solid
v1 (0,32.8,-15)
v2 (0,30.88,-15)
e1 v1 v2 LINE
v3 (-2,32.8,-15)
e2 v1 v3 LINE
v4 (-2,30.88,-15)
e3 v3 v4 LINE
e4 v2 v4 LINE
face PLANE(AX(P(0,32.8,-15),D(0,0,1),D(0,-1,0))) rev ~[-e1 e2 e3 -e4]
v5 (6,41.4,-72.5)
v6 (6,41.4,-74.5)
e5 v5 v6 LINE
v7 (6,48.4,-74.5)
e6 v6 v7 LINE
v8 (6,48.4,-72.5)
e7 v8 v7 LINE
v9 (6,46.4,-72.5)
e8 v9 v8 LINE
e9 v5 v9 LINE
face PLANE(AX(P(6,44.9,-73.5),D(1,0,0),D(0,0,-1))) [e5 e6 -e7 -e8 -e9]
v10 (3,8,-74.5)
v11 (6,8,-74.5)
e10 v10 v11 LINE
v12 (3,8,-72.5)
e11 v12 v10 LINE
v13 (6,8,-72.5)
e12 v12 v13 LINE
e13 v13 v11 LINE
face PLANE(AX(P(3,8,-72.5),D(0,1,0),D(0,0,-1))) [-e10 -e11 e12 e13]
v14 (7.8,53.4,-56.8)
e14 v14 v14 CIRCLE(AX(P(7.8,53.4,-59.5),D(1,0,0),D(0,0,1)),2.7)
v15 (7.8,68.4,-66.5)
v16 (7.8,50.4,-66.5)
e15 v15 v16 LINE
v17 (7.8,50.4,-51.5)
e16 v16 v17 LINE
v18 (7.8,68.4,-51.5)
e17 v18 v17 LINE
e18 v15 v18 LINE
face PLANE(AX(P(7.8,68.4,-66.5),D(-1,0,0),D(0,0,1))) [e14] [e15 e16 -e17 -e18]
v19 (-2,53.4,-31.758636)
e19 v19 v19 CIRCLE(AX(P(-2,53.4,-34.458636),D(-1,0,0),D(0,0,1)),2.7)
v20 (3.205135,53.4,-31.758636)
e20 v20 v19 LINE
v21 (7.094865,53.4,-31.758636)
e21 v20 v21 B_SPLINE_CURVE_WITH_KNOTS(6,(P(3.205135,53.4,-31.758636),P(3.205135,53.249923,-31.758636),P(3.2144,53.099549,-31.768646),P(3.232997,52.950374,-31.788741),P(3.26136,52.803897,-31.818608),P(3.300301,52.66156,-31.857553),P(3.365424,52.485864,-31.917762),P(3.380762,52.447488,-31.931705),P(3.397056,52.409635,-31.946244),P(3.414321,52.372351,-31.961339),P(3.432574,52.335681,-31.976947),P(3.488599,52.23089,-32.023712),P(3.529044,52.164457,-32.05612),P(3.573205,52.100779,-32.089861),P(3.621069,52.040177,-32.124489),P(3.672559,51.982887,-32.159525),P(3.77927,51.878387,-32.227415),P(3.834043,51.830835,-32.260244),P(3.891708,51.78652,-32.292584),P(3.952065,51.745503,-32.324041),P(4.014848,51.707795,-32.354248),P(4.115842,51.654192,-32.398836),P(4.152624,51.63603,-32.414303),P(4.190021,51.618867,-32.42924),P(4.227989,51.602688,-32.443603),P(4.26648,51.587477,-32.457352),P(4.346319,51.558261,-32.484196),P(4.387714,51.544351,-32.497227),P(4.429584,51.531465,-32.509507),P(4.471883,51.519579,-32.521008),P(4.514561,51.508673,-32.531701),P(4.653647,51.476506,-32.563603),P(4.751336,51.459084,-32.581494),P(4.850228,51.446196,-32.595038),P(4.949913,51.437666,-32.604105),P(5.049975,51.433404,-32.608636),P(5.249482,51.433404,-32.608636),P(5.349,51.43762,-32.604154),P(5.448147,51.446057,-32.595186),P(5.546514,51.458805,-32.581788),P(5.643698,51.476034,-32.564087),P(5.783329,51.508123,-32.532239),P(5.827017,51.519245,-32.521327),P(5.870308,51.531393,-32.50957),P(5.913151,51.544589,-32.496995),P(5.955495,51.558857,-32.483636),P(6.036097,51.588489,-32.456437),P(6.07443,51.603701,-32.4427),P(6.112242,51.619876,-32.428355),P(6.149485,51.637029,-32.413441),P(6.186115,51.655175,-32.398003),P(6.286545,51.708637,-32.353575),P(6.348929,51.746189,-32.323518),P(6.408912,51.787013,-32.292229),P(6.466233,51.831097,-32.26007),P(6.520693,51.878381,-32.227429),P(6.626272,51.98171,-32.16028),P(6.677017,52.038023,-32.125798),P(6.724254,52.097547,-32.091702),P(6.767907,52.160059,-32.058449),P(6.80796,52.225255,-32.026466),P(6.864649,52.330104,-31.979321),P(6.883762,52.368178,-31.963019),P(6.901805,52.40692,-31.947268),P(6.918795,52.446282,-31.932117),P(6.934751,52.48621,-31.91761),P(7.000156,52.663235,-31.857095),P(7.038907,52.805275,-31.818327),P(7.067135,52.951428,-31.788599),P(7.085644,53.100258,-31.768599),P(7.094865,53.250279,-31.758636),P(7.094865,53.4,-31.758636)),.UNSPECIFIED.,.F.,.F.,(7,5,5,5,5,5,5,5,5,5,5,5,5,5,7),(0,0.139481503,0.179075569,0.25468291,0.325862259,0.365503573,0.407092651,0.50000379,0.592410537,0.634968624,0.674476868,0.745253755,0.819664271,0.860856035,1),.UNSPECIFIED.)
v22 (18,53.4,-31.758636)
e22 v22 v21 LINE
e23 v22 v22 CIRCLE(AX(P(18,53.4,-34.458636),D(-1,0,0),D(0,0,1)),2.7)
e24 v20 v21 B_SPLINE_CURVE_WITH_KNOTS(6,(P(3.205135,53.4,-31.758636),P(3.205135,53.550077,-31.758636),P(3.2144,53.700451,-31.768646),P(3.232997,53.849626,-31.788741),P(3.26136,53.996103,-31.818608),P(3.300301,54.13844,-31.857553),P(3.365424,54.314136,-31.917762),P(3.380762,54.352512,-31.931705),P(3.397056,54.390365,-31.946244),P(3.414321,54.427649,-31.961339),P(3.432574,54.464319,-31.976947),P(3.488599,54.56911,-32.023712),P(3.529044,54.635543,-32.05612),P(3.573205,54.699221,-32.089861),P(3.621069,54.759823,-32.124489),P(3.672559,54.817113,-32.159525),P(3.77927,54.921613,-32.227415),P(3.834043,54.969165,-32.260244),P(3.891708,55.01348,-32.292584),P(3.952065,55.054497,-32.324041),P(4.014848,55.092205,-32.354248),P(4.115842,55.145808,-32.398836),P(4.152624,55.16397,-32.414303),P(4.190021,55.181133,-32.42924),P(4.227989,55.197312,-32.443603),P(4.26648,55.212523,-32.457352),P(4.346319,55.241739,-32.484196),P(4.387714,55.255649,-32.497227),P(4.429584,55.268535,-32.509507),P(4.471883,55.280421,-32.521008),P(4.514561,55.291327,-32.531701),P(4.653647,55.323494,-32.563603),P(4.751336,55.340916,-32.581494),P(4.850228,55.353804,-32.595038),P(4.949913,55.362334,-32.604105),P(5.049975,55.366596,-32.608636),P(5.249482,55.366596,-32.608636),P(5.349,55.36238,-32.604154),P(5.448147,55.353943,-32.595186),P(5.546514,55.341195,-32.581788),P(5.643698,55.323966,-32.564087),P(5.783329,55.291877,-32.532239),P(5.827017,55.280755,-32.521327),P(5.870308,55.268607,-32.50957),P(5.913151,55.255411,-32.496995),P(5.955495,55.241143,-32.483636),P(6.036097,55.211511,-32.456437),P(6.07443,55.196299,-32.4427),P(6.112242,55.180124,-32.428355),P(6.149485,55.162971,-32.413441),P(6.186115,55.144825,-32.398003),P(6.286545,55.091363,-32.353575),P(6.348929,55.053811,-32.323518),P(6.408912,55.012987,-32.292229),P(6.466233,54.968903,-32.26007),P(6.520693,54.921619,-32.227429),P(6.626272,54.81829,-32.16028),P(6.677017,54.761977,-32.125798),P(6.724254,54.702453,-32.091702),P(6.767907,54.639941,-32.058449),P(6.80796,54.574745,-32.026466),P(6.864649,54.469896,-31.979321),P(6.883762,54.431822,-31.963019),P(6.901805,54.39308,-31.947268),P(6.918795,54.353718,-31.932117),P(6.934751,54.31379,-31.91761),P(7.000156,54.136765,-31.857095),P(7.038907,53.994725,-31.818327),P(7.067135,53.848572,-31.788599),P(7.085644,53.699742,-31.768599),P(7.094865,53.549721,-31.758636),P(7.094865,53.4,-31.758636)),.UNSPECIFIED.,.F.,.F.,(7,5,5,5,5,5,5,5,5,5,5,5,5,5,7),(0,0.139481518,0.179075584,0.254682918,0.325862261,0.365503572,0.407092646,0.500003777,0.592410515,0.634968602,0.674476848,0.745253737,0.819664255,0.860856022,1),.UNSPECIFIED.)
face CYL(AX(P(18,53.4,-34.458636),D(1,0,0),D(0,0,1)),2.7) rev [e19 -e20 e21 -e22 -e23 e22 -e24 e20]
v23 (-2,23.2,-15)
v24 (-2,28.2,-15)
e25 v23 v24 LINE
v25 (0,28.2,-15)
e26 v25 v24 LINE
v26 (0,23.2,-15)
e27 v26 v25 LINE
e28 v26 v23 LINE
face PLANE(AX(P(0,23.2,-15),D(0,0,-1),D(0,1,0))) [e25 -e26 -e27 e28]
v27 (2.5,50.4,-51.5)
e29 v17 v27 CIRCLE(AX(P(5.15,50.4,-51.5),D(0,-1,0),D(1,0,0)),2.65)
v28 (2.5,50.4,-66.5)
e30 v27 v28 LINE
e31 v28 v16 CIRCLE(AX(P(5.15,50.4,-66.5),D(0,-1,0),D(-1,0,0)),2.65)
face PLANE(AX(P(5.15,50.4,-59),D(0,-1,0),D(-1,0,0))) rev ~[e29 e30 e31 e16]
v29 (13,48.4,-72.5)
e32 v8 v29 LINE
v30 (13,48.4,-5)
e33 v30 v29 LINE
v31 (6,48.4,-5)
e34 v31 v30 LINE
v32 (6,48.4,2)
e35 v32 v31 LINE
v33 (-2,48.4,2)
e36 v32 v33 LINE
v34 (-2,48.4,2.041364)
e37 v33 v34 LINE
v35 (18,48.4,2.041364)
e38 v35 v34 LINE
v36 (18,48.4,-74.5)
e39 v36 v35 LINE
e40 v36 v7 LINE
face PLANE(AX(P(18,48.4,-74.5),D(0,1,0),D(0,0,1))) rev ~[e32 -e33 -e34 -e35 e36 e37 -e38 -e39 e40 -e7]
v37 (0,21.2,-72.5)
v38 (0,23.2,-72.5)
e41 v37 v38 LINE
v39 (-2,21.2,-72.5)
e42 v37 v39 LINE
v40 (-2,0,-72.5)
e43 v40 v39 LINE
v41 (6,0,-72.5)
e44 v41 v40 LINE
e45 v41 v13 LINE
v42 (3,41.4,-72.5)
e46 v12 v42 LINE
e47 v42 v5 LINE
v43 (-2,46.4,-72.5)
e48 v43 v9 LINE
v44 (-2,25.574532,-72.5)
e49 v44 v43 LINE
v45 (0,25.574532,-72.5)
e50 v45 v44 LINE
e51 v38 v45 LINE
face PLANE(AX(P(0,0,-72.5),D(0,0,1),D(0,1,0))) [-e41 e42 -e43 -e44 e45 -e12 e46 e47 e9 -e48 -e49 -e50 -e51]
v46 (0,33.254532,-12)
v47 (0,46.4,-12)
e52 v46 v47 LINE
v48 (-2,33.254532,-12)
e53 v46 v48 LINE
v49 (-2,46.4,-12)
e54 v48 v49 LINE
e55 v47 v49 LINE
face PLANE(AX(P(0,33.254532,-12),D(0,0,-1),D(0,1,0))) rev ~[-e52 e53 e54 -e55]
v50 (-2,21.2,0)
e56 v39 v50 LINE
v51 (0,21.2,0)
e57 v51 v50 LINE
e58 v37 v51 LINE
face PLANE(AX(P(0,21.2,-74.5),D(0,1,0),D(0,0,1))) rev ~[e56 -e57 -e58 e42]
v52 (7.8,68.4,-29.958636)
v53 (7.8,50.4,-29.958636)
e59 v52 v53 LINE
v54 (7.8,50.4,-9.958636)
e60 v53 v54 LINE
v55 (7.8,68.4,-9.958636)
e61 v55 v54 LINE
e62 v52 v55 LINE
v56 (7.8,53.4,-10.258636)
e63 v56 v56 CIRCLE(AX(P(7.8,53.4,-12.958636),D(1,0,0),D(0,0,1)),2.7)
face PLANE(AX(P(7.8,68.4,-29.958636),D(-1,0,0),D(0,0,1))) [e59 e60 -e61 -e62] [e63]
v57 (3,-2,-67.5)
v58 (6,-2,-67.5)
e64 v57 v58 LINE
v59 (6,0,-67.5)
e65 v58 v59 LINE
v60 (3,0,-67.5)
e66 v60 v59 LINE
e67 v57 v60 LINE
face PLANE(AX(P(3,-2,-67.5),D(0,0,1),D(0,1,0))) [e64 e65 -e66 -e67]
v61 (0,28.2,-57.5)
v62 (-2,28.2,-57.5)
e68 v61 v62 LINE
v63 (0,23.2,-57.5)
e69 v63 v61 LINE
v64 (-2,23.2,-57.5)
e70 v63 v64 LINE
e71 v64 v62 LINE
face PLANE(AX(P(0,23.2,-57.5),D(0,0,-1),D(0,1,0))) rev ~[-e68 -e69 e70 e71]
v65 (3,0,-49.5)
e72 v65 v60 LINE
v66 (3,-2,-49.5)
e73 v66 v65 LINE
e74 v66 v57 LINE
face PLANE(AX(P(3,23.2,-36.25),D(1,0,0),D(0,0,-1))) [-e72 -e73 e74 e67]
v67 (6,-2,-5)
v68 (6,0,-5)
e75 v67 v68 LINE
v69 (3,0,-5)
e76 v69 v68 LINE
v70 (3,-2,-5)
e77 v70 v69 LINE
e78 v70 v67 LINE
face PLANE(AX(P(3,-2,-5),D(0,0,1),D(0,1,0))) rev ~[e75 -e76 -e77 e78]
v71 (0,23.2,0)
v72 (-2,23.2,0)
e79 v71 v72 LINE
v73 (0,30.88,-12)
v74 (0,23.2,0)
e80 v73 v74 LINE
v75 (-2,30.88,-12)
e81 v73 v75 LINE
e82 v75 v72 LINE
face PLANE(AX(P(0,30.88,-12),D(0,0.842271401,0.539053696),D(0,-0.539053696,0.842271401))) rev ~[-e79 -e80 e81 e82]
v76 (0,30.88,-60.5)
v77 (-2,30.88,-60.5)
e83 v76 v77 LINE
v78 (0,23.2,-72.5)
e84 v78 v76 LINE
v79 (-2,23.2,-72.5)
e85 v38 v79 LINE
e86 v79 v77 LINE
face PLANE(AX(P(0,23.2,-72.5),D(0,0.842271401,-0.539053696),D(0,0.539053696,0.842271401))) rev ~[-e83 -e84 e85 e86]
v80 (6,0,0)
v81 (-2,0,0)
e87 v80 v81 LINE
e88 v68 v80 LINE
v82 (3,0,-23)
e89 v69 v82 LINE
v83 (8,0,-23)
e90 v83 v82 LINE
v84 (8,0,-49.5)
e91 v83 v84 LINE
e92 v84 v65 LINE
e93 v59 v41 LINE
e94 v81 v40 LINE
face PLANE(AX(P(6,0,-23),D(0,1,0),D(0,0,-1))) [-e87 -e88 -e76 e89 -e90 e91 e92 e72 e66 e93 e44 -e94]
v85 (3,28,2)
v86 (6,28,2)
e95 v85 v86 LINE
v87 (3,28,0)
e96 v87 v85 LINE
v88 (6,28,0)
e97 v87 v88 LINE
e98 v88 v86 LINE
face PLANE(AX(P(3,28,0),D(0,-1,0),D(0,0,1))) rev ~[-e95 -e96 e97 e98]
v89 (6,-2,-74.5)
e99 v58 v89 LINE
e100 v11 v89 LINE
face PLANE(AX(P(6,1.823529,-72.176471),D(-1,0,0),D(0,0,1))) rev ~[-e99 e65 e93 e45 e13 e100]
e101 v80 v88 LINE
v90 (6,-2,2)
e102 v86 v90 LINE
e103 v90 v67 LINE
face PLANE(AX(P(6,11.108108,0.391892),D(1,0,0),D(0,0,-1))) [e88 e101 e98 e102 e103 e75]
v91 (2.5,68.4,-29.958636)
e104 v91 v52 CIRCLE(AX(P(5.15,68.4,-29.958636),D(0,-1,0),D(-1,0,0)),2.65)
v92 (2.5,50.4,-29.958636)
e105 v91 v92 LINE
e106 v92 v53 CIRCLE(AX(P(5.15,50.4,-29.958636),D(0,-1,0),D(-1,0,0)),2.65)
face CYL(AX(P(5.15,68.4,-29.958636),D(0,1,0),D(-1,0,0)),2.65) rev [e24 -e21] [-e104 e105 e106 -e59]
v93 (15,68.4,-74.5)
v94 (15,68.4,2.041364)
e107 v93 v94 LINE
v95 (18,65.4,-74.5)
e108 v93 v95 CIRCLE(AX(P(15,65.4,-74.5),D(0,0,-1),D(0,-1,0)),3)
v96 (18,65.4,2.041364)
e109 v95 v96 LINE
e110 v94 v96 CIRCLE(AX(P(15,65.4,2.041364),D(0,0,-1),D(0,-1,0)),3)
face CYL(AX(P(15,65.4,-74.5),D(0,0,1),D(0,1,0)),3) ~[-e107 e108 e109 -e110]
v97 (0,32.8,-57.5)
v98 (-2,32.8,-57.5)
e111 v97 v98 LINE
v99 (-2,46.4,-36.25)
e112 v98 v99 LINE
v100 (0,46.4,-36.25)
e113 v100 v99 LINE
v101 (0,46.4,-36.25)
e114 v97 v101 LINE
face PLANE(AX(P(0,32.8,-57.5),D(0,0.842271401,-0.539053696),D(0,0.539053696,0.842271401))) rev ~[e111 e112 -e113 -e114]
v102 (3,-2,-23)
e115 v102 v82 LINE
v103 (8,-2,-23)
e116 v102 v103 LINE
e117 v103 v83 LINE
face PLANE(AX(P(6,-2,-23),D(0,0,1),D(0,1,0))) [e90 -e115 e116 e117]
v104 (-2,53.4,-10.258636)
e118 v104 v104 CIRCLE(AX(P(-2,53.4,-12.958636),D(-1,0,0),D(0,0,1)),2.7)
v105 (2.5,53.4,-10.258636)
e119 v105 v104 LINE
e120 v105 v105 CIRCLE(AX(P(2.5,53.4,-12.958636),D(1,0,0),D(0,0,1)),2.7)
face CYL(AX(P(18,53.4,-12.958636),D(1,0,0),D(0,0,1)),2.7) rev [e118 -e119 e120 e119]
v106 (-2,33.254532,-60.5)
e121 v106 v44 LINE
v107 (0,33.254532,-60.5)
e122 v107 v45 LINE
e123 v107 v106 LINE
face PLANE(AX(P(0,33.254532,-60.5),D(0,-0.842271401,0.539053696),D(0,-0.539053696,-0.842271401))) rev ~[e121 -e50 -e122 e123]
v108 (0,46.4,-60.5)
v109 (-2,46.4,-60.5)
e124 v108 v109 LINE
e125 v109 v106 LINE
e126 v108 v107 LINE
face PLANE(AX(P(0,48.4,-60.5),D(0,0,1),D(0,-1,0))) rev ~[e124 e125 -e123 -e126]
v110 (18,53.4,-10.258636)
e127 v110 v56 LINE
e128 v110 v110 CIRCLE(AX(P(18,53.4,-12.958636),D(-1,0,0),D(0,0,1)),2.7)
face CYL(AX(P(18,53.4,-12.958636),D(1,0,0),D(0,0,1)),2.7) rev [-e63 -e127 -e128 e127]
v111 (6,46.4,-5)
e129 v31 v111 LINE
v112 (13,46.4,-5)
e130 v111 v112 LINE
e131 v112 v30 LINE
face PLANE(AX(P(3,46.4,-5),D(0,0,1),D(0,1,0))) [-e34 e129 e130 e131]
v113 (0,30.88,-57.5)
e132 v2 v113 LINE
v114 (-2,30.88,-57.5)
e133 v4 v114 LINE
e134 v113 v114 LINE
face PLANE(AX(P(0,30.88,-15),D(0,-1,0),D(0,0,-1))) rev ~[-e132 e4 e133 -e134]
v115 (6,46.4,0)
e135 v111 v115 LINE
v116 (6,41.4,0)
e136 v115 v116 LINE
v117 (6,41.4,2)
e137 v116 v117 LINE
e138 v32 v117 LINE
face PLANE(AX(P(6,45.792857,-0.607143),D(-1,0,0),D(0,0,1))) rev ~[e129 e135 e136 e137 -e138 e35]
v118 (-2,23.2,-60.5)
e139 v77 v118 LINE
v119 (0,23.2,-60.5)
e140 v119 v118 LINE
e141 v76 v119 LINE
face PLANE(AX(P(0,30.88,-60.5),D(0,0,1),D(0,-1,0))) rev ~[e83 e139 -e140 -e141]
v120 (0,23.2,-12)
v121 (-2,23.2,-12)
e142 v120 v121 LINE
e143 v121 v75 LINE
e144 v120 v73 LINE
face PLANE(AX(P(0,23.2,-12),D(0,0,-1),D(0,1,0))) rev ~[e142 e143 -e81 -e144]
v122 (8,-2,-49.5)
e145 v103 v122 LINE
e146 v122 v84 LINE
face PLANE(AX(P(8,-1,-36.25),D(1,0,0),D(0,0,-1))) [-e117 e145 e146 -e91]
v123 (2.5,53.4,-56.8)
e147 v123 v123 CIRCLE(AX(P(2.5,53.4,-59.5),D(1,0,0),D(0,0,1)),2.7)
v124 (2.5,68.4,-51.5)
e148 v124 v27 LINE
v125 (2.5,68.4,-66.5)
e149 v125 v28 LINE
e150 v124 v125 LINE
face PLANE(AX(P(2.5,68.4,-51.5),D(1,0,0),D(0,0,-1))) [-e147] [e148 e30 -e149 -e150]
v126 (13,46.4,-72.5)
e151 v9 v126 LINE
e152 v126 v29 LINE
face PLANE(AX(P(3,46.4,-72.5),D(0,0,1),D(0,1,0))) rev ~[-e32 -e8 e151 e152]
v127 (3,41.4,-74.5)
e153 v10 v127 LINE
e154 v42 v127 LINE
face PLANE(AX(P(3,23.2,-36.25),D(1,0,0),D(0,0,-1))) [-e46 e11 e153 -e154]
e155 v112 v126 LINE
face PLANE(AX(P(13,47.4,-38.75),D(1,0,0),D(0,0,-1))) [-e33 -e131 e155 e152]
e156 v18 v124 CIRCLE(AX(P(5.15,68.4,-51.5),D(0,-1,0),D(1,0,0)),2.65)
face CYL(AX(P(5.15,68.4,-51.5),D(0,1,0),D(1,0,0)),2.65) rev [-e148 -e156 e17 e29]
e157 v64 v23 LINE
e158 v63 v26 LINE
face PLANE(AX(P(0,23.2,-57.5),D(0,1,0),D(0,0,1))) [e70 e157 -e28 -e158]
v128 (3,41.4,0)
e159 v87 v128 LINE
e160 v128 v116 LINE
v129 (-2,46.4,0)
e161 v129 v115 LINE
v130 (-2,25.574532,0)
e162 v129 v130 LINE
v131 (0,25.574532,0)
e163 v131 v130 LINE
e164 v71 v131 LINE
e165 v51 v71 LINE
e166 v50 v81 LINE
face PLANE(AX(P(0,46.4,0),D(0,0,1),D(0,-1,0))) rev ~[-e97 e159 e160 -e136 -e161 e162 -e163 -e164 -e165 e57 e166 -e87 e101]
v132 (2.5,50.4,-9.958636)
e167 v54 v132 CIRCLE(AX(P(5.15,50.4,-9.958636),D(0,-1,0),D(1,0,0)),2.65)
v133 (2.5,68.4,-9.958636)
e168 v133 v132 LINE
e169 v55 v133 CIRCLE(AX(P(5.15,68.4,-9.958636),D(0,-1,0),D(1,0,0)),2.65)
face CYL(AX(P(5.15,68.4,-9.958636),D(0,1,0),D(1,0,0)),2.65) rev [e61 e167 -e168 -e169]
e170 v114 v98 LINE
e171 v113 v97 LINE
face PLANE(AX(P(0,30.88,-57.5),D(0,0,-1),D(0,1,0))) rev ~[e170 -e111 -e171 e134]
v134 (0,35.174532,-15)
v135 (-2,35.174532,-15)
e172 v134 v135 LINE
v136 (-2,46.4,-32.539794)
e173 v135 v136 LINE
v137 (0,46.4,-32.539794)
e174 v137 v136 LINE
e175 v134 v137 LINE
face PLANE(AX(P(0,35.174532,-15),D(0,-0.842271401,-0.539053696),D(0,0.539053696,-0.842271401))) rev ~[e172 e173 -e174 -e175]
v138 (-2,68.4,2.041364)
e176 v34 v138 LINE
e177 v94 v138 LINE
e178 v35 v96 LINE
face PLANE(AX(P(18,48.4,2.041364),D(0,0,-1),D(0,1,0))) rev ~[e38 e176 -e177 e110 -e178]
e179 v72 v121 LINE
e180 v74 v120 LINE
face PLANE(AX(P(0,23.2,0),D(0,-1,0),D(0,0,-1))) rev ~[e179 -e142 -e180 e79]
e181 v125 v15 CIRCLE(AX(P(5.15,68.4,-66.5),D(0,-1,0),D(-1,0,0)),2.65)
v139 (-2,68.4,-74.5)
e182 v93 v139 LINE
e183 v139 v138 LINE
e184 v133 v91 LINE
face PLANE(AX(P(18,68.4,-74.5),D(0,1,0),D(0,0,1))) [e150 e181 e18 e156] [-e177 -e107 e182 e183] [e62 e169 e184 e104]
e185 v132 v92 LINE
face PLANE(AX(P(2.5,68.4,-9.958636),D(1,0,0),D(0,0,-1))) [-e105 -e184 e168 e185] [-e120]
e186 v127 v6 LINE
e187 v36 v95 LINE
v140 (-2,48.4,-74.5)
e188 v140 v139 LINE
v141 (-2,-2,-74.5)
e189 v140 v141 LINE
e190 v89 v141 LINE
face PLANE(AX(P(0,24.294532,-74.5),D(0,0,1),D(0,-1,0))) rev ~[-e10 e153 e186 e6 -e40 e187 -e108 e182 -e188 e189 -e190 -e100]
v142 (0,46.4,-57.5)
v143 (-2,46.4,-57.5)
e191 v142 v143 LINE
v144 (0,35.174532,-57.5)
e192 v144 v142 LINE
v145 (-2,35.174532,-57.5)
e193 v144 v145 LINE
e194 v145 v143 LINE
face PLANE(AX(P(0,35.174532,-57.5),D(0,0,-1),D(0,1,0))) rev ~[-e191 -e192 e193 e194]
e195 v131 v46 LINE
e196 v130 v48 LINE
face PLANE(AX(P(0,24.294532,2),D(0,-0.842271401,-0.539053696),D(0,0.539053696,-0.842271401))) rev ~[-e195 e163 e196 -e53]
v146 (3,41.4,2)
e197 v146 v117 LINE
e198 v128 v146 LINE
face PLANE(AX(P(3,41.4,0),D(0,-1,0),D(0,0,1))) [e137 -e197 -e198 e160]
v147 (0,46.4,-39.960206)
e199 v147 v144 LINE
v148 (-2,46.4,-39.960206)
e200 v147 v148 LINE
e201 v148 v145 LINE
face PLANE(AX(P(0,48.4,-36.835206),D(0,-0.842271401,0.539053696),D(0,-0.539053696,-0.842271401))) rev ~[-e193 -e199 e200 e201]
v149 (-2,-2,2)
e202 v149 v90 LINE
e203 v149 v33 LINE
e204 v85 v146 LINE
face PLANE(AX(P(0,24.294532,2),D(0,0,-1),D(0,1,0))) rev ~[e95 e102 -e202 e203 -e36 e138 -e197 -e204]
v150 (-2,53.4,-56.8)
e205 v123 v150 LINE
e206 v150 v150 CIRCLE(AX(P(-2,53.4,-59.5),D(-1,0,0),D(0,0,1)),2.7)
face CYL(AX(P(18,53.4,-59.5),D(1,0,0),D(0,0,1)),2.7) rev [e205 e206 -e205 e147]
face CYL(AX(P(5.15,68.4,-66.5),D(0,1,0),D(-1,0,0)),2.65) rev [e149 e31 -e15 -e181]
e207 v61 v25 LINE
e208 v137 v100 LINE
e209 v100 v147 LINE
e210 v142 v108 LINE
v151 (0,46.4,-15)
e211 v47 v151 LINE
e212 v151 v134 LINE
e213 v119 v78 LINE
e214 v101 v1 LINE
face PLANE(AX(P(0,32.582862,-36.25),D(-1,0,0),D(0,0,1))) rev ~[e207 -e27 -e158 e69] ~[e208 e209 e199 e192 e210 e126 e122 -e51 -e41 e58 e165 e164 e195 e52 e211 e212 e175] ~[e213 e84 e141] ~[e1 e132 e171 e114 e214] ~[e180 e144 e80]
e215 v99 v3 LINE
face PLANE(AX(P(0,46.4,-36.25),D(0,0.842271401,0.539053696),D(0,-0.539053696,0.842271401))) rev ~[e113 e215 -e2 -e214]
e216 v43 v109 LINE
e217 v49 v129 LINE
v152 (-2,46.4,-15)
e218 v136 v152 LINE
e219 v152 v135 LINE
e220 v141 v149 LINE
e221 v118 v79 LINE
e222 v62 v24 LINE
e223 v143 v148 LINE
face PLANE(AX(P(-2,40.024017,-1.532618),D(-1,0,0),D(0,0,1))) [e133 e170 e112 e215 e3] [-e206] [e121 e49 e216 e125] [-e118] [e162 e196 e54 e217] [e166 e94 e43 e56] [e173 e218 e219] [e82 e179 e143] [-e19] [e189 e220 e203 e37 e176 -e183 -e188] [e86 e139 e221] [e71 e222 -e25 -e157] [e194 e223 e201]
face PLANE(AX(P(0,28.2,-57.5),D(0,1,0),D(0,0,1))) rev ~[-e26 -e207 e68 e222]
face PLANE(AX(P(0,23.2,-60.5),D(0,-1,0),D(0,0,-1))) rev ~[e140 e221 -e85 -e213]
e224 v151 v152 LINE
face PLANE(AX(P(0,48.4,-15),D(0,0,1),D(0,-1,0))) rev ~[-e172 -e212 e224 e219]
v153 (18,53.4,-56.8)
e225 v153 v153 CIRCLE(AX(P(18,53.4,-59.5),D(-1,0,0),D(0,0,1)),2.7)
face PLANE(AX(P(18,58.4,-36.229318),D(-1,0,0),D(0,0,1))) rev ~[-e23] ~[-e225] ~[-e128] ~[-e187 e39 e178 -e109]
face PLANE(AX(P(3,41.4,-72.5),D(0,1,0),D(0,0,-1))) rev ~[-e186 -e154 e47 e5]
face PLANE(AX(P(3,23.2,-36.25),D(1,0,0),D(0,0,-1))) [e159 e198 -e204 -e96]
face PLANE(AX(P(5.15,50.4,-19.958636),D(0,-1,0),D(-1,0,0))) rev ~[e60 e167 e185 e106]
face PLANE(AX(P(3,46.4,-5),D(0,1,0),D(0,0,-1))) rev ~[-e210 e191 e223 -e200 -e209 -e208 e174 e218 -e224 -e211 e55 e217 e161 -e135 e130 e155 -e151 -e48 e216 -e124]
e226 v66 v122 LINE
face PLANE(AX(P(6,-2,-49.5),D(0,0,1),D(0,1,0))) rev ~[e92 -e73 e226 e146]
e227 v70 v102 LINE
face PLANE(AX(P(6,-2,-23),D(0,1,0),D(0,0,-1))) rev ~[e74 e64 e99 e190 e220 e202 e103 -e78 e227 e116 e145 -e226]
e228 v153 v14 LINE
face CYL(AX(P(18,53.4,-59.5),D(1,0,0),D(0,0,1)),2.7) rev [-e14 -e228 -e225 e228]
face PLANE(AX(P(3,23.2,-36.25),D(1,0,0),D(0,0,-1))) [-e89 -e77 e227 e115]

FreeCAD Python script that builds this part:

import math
import FreeCAD as App
import Part
import Sketcher
from FreeCAD import Vector


def edges_at(feature, points):
    """Names of the edges that pass closest to the given points."""
    edges = feature.Shape.Edges
    near = lambda p: min(range(len(edges)), key=lambda i: edges[i].distToShape(Part.Vertex(*p))[0])
    return sorted({f"Edge{near(p) + 1}" for p in points})


def add_polygon(sketch, points):
    """Adds a closed chain of lines whose ends are joined by coincident constraints."""
    first, n = sketch.GeometryCount, len(points)
    for a, b in zip(points, points[1:] + points[:1]):
        sketch.addGeometry(Part.LineSegment(App.Vector(*a, 0), App.Vector(*b, 0)), False)
    for i in range(n):
        sketch.addConstraint(Sketcher.Constraint("Coincident", first + i, 2, first + (i + 1) % n, 1))

doc = App.newDocument("Part")
body = doc.addObject("PartDesign::Body", "Body")

sketch1 = doc.addObject("Sketcher::SketchObject", "Sketch")
body.addObject(sketch1)
sketch1.AttachmentSupport = (doc.YZ_Plane, [""])
sketch1.MapMode = "FlatFace"
add_polygon(sketch1, [(48.4, 2), (-2, 2), (-2, -74.5), (48.4, -74.5)])
add_polygon(sketch1, [(0, -72.5), (0, 0), (46.4, 0), (46.4, -72.5)])
sketch1.addConstraint(Sketcher.Constraint("Horizontal", 0))
sketch1.addConstraint(Sketcher.Constraint("Vertical", 1))
sketch1.addConstraint(Sketcher.Constraint("Horizontal", 2))
sketch1.addConstraint(Sketcher.Constraint("Vertical", 3))
sketch1.addConstraint(Sketcher.Constraint("Vertical", 4))
sketch1.addConstraint(Sketcher.Constraint("Horizontal", 5))
sketch1.addConstraint(Sketcher.Constraint("Vertical", 6))
sketch1.addConstraint(Sketcher.Constraint("Horizontal", 7))
sketch1.addConstraint(Sketcher.Constraint("Coincident", 4, 2, -1, 1))
sketch1.addConstraint(Sketcher.Constraint("DistanceX", 0, 2, 0, 1, 50.4))
sketch1.addConstraint(Sketcher.Constraint("DistanceX", 5, 1, 5, 2, 46.4))
sketch1.addConstraint(Sketcher.Constraint("DistanceY", 1, 2, 1, 1, 76.5))
sketch1.addConstraint(Sketcher.Constraint("DistanceY", 4, 1, 4, 2, 72.5))
sketch1.addConstraint(Sketcher.Constraint("DistanceX", 0, 2, -1, 1, 2.0))
sketch1.addConstraint(Sketcher.Constraint("DistanceY", -1, 1, 0, 2, 2.0))
pad1 = doc.addObject("PartDesign::Pad", "Pad")
body.addObject(pad1)
pad1.Profile = sketch1
pad1.Length = 3

sketch2 = doc.addObject("Sketcher::SketchObject", "Sketch001")
body.addObject(sketch2)
sketch2.AttachmentSupport = (doc.YZ_Plane, [""])
sketch2.MapMode = "FlatFace"
sketch2.AttachmentOffset = App.Placement(Vector(0, 0, 3), App.Rotation())
add_polygon(sketch2, [(0, -23), (-2, -23), (-2, -49.5), (0, -49.5)])
add_polygon(sketch2, [(-2, 2), (-2, -5), (0, -5), (0, 0), (28, 0), (28, 2)])
add_polygon(sketch2, [(-2, -67.5), (-2, -74.5), (8, -74.5), (8, -72.5), (0, -72.5), (0, -67.5)])
add_polygon(sketch2, [(48.4, -5), (48.4, 2), (41.4, 2), (41.4, 0), (46.4, 0), (46.4, -5)])
add_polygon(sketch2, [(48.4, -72.5), (41.4, -72.5), (41.4, -74.5), (48.4, -74.5)])
sketch2.addConstraint(Sketcher.Constraint("Horizontal", 0))
sketch2.addConstraint(Sketcher.Constraint("Vertical", 1))
sketch2.addConstraint(Sketcher.Constraint("Horizontal", 2))
sketch2.addConstraint(Sketcher.Constraint("Vertical", 3))
sketch2.addConstraint(Sketcher.Constraint("Vertical", 4))
sketch2.addConstraint(Sketcher.Constraint("Horizontal", 5))
sketch2.addConstraint(Sketcher.Constraint("Vertical", 6))
sketch2.addConstraint(Sketcher.Constraint("Horizontal", 7))
sketch2.addConstraint(Sketcher.Constraint("Vertical", 8))
sketch2.addConstraint(Sketcher.Constraint("Horizontal", 9))
sketch2.addConstraint(Sketcher.Constraint("Vertical", 10))
sketch2.addConstraint(Sketcher.Constraint("Horizontal", 11))
sketch2.addConstraint(Sketcher.Constraint("Vertical", 12))
sketch2.addConstraint(Sketcher.Constraint("Horizontal", 13))
sketch2.addConstraint(Sketcher.Constraint("Vertical", 14))
sketch2.addConstraint(Sketcher.Constraint("Horizontal", 15))
sketch2.addConstraint(Sketcher.Constraint("Vertical", 16))
sketch2.addConstraint(Sketcher.Constraint("Horizontal", 17))
sketch2.addConstraint(Sketcher.Constraint("Vertical", 18))
sketch2.addConstraint(Sketcher.Constraint("Horizontal", 19))
sketch2.addConstraint(Sketcher.Constraint("Vertical", 20))
sketch2.addConstraint(Sketcher.Constraint("Horizontal", 21))
sketch2.addConstraint(Sketcher.Constraint("Horizontal", 22))
sketch2.addConstraint(Sketcher.Constraint("Vertical", 23))
sketch2.addConstraint(Sketcher.Constraint("Horizontal", 24))
sketch2.addConstraint(Sketcher.Constraint("Vertical", 25))
sketch2.addConstraint(Sketcher.Constraint("Coincident", 6, 2, -1, 1))
sketch2.addConstraint(Sketcher.Constraint("PointOnObject", 2, 2, -2))
sketch2.addConstraint(Sketcher.Constraint("PointOnObject", 13, 2, -2))
sketch2.addConstraint(Sketcher.Constraint("PointOnObject", 18, 2, -1))
sketch2.addConstraint(Sketcher.Constraint("Horizontal", 9, 2, 16, 2))
sketch2.addConstraint(Sketcher.Constraint("Horizontal", 5, 2, 20, 2))
sketch2.addConstraint(Sketcher.Constraint("Horizontal", 13, 2, 22, 2))
sketch2.addConstraint(Sketcher.Constraint("Horizontal", 11, 2, 23, 2))
sketch2.addConstraint(Sketcher.Constraint("Vertical", 1, 2, 4, 2))
sketch2.addConstraint(Sketcher.Constraint("Vertical", 9, 2, 10, 2))
sketch2.addConstraint(Sketcher.Constraint("Vertical", 18, 2, 22, 2))
sketch2.addConstraint(Sketcher.Constraint("Vertical", 21, 2, 24, 2))
sketch2.addConstraint(Sketcher.Constraint("Equal", 15, 21))
sketch2.addConstraint(Sketcher.Constraint("Equal", 24, 4))
sketch2.addConstraint(Sketcher.Constraint("Equal", 19, 6))
sketch2.addConstraint(Sketcher.Constraint("Equal", 4, 10))
sketch2.addConstraint(Sketcher.Constraint("Equal", 8, 12))
sketch2.addConstraint(Sketcher.Constraint("DistanceX", 0, 2, 0, 1, 2.0))
sketch2.addConstraint(Sketcher.Constraint("DistanceX", 7, 1, 7, 2, 28.0))
sketch2.addConstraint(Sketcher.Constraint("DistanceX", 11, 1, 11, 2, 10.0))
sketch2.addConstraint(Sketcher.Constraint("DistanceX", 17, 2, 17, 1, 7.0))
sketch2.addConstraint(Sketcher.Constraint("DistanceY", 1, 2, 1, 1, 26.5))
sketch2.addConstraint(Sketcher.Constraint("DistanceY", 0, 2, -1, 1, 23.0))
sketch2.addConstraint(Sketcher.Constraint("DistanceY", 10, 2, 1, 2, 25.0))
sketch2.addConstraint(Sketcher.Constraint("DistanceX", -1, 1, 16, 2, 48.4))
pad2 = doc.addObject("PartDesign::Pad", "Pad001")
body.addObject(pad2)
pad2.Profile = sketch2
pad2.Length = 3

sketch3 = doc.addObject("Sketcher::SketchObject", "Sketch002")
body.addObject(sketch3)
sketch3.AttachmentSupport = (doc.YZ_Plane, [""])
sketch3.MapMode = "FlatFace"
add_polygon(sketch3, [(68.4, -74.5), (48.4, -74.5), (48.4, 2.041364), (68.4, 2.041364)])
sketch3.addGeometry(Part.Circle(Vector(53.4, -59.5, 0), Vector(0, 0, 1), 2.7), False)
sketch3.addGeometry(Part.Circle(Vector(53.4, -34.458636, 0), Vector(0, 0, 1), 2.7), False)
sketch3.addGeometry(Part.Circle(Vector(53.4, -12.958636, 0), Vector(0, 0, 1), 2.7), False)
sketch3.addConstraint(Sketcher.Constraint("Horizontal", 0))
sketch3.addConstraint(Sketcher.Constraint("Vertical", 1))
sketch3.addConstraint(Sketcher.Constraint("Horizontal", 2))
sketch3.addConstraint(Sketcher.Constraint("Vertical", 3))
sketch3.addConstraint(Sketcher.Constraint("Equal", 4, 5))
sketch3.addConstraint(Sketcher.Constraint("Equal", 5, 6))
sketch3.addConstraint(Sketcher.Constraint("Vertical", 4, 3, 5, 3))
sketch3.addConstraint(Sketcher.Constraint("Vertical", 5, 3, 6, 3))
sketch3.addConstraint(Sketcher.Constraint("Diameter", 4, 5.4))
sketch3.addConstraint(Sketcher.Constraint("DistanceX", 0, 2, 0, 1, 20.0))
sketch3.addConstraint(Sketcher.Constraint("DistanceX", 0, 2, 4, 3, 5.0))
sketch3.addConstraint(Sketcher.Constraint("DistanceY", 0, 2, 4, 3, 15.0))
sketch3.addConstraint(Sketcher.Constraint("DistanceY", 6, 3, 1, 2, 15.0))
sketch3.addConstraint(Sketcher.Constraint("DistanceX", -1, 1, 4, 3, 53.4))
sketch3.addConstraint(Sketcher.Constraint("DistanceY", 4, 3, -1, 1, 59.5))
sketch3.addConstraint(Sketcher.Constraint("DistanceY", 5, 3, 6, 3, 21.5))
sketch3.addConstraint(Sketcher.Constraint("DistanceY", 1, 1, 1, 2, 76.541364))
pad3 = doc.addObject("PartDesign::Pad", "Pad002")
body.addObject(pad3)
pad3.Profile = sketch3
pad3.Type = "TwoLengths"
pad3.Length = 2
pad3.Length2 = 18
pad3.Reversed = True
doc.recompute()

fillet = doc.addObject("PartDesign::Fillet", "Fillet")
body.addObject(fillet)
fillet.Base = (pad3, edges_at(pad3, [(18, 68.4, -36.229)]))
fillet.Radius = 3

sketch4 = doc.addObject("Sketcher::SketchObject", "Sketch003")
body.addObject(sketch4)
sketch4.AttachmentSupport = (doc.XZ_Plane, [""])
sketch4.MapMode = "FlatFace"
sketch4.AttachmentOffset = App.Placement(Vector(0, 0, -68.4), App.Rotation())
sketch4.addGeometry(Part.LineSegment(Vector(7.8, -51.5, 0), Vector(7.8, -66.5, 0)), False)
sketch4.addGeometry(Part.ArcOfCircle(Part.Circle(Vector(5.15, -66.5, 0), Vector(0, 0, 1), 2.65), math.radians(180), math.radians(360)), False)
sketch4.addGeometry(Part.LineSegment(Vector(2.5, -66.5, 0), Vector(2.5, -51.5, 0)), False)
sketch4.addGeometry(Part.ArcOfCircle(Part.Circle(Vector(5.15, -51.5, 0), Vector(0, 0, 1), 2.65), math.radians(0), math.radians(180)), False)
sketch4.addGeometry(Part.LineSegment(Vector(7.8, -9.958636, 0), Vector(7.8, -29.958636, 0)), False)
sketch4.addGeometry(Part.ArcOfCircle(Part.Circle(Vector(5.15, -29.958636, 0), Vector(0, 0, 1), 2.65), math.radians(180), math.radians(360)), False)
sketch4.addGeometry(Part.LineSegment(Vector(2.5, -29.958636, 0), Vector(2.5, -9.958636, 0)), False)
sketch4.addGeometry(Part.ArcOfCircle(Part.Circle(Vector(5.15, -9.958636, 0), Vector(0, 0, 1), 2.65), math.radians(0), math.radians(180)), False)
sketch4.addConstraint(Sketcher.Constraint("Tangent", 0, 2, 1, 2))
sketch4.addConstraint(Sketcher.Constraint("Tangent", 1, 1, 2, 1))
sketch4.addConstraint(Sketcher.Constraint("Tangent", 2, 2, 3, 2))
sketch4.addConstraint(Sketcher.Constraint("Tangent", 3, 1, 0, 1))
sketch4.addConstraint(Sketcher.Constraint("Tangent", 4, 2, 5, 2))
sketch4.addConstraint(Sketcher.Constraint("Tangent", 5, 1, 6, 1))
sketch4.addConstraint(Sketcher.Constraint("Tangent", 6, 2, 7, 2))
sketch4.addConstraint(Sketcher.Constraint("Tangent", 7, 1, 4, 1))
sketch4.addConstraint(Sketcher.Constraint("Vertical", 0))
sketch4.addConstraint(Sketcher.Constraint("Vertical", 2))
sketch4.addConstraint(Sketcher.Constraint("Vertical", 4))
sketch4.addConstraint(Sketcher.Constraint("Vertical", 6))
sketch4.addConstraint(Sketcher.Constraint("Equal", 3, 5))
sketch4.addConstraint(Sketcher.Constraint("Vertical", 3, 3, 5, 3))
sketch4.addConstraint(Sketcher.Constraint("DistanceY", 0, 2, 0, 1, 15.0))
sketch4.addConstraint(Sketcher.Constraint("DistanceY", 4, 2, 4, 1, 20.0))
sketch4.addConstraint(Sketcher.Constraint("Radius", 1, 2.65))
sketch4.addConstraint(Sketcher.Constraint("DistanceY", 1, 3, -1, 1, 66.5))
sketch4.addConstraint(Sketcher.Constraint("DistanceX", -1, 1, 0, 2, 7.8))
sketch4.addConstraint(Sketcher.Constraint("DistanceY", 5, 3, -1, 1, 29.958636))
pocket1 = doc.addObject("PartDesign::Pocket", "Pocket")
body.addObject(pocket1)
pocket1.Profile = sketch4
pocket1.Length = 18
pocket1.Reversed = True

sketch5 = doc.addObject("Sketcher::SketchObject", "Sketch004")
body.addObject(sketch5)
sketch5.AttachmentSupport = (doc.YZ_Plane, [""])
sketch5.MapMode = "FlatFace"
add_polygon(sketch5, [(48.4, -35.664794), (48.4, -36.835206), (35.174532, -57.5), (48.4, -57.5), (48.4, -60.5), (33.254532, -60.5), (24.294532, -74.5), (21.2, -74.5), (21.2, 2), (24.294532, 2), (33.254532, -12), (48.4, -12), (48.4, -15), (35.174532, -15)])
add_polygon(sketch5, [(30.88, -60.5), (23.2, -60.5), (23.2, -72.5)])
add_polygon(sketch5, [(23.2, -15), (23.2, -57.5), (28.2, -57.5), (28.2, -15)])
add_polygon(sketch5, [(23.2, -12), (30.88, -12), (23.2, 0)])
add_polygon(sketch5, [(30.88, -57.5), (32.8, -57.5), (46.4, -36.25), (32.8, -15), (30.88, -15)])
sketch5.addConstraint(Sketcher.Constraint("Vertical", 0))
sketch5.addConstraint(Sketcher.Constraint("Horizontal", 2))
sketch5.addConstraint(Sketcher.Constraint("Vertical", 3))
sketch5.addConstraint(Sketcher.Constraint("Horizontal", 4))
sketch5.addConstraint(Sketcher.Constraint("Horizontal", 6))
sketch5.addConstraint(Sketcher.Constraint("Vertical", 7))
sketch5.addConstraint(Sketcher.Constraint("Horizontal", 8))
sketch5.addConstraint(Sketcher.Constraint("Horizontal", 10))
sketch5.addConstraint(Sketcher.Constraint("Vertical", 11))
sketch5.addConstraint(Sketcher.Constraint("Horizontal", 12))
sketch5.addConstraint(Sketcher.Constraint("Horizontal", 14))
sketch5.addConstraint(Sketcher.Constraint("Vertical", 15))
sketch5.addConstraint(Sketcher.Constraint("Vertical", 17))
sketch5.addConstraint(Sketcher.Constraint("Horizontal", 18))
sketch5.addConstraint(Sketcher.Constraint("Vertical", 19))
sketch5.addConstraint(Sketcher.Constraint("Horizontal", 20))
sketch5.addConstraint(Sketcher.Constraint("Horizontal", 21))
sketch5.addConstraint(Sketcher.Constraint("Vertical", 23))
sketch5.addConstraint(Sketcher.Constraint("Horizontal", 24))
sketch5.addConstraint(Sketcher.Constraint("Horizontal", 27))
sketch5.addConstraint(Sketcher.Constraint("Vertical", 28))
sketch5.addConstraint(Sketcher.Constraint("PointOnObject", 22, 2, -1))
sketch5.addConstraint(Sketcher.Constraint("Parallel", 1, 5))
sketch5.addConstraint(Sketcher.Constraint("Parallel", 9, 13))
sketch5.addConstraint(Sketcher.Constraint("Parallel", 5, 16))
sketch5.addConstraint(Sketcher.Constraint("Parallel", 13, 22))
sketch5.addConstraint(Sketcher.Constraint("Parallel", 16, 25))
sketch5.addConstraint(Sketcher.Constraint("Parallel", 22, 26))
sketch5.addConstraint(Sketcher.Constraint("Horizontal", 4, 2, 14, 2))
sketch5.addConstraint(Sketcher.Constraint("Horizontal", 2, 2, 17, 2))
sketch5.addConstraint(Sketcher.Constraint("Horizontal", 12, 2, 19, 2))
sketch5.addConstraint(Sketcher.Constraint("Horizontal", 10, 2, 21, 2))
sketch5.addConstraint(Sketcher.Constraint("Horizontal", 18, 2, 24, 2))
sketch5.addConstraint(Sketcher.Constraint("Horizontal", 20, 2, 26, 2))
sketch5.addConstraint(Sketcher.Constraint("Vertical", 0, 2, 2, 2))
sketch5.addConstraint(Sketcher.Constraint("Vertical", 5, 2, 8, 2))
sketch5.addConstraint(Sketcher.Constraint("Vertical", 4, 2, 9, 2))
sketch5.addConstraint(Sketcher.Constraint("Vertical", 3, 2, 10, 2))
sketch5.addConstraint(Sketcher.Constraint("Vertical", 1, 2, 12, 2))
sketch5.addConstraint(Sketcher.Constraint("Vertical", 15, 2, 17, 2))
sketch5.addConstraint(Sketcher.Constraint("Vertical", 16, 2, 21, 2))
sketch5.addConstraint(Sketcher.Constraint("Vertical", 20, 2, 22, 2))
sketch5.addConstraint(Sketcher.Constraint("Vertical", 24, 2, 26, 2))
sketch5.addConstraint(Sketcher.Constraint("Vertical", 21, 2, 27, 2))
sketch5.addConstraint(Sketcher.Constraint("Equal", 3, 11))
sketch5.addConstraint(Sketcher.Constraint("Equal", 15, 23))
sketch5.addConstraint(Sketcher.Constraint("DistanceX", 18, 1, 18, 2, 5.0))
sketch5.addConstraint(Sketcher.Constraint("DistanceY", 3, 2, 3, 1, 3.0))
sketch5.addConstraint(Sketcher.Constraint("DistanceY", 15, 2, 15, 1, 12.0))
sketch5.addConstraint(Sketcher.Constraint("DistanceY", 7, 1, 7, 2, 76.5))
sketch5.addConstraint(Sketcher.Constraint("DistanceY", 17, 2, 17, 1, 42.5))
sketch5.addConstraint(Sketcher.Constraint("DistanceX", 6, 2, 14, 2, 2.0))
sketch5.addConstraint(Sketcher.Constraint("DistanceX", 25, 2, 0, 2, 2.0))
sketch5.addConstraint(Sketcher.Constraint("DistanceX", 14, 2, 14, 1, 7.68))
sketch5.addConstraint(Sketcher.Constraint("DistanceX", 24, 1, 24, 2, 1.92))
sketch5.addConstraint(Sketcher.Constraint("DistanceX", -1, 1, 0, 2, 48.4))
sketch5.addConstraint(Sketcher.Constraint("DistanceX", 4, 2, 1, 2, 1.92))
sketch5.addConstraint(Sketcher.Constraint("DistanceX", 2, 1, 2, 2, 13.225468))
pad4 = doc.addObject("PartDesign::Pad", "Pad003")
body.addObject(pad4)
pad4.Profile = sketch5
pad4.Length = 2
pad4.Reversed = True

sketch6 = doc.addObject("Sketcher::SketchObject", "Sketch005")
body.addObject(sketch6)
sketch6.AttachmentSupport = (doc.YZ_Plane, [""])
sketch6.MapMode = "FlatFace"
add_polygon(sketch6, [(46.4, 0), (25.574532, 0), (24.294532, 2), (48.4, 2), (48.4, -12), (46.4, -12)])
add_polygon(sketch6, [(48.4, -74.5), (24.294532, -74.5), (25.574532, -72.5), (46.4, -72.5), (46.4, -60.5), (48.4, -60.5)])
add_polygon(sketch6, [(-2, 2), (21.2, 2), (21.2, 0), (0, 0), (0, -72.5), (21.2, -72.5), (21.2, -74.5), (-2, -74.5)])
add_polygon(sketch6, [(46.4, -15), (48.4, -15), (48.4, -35.664794), (46.4, -32.539794)])
add_polygon(sketch6, [(46.4, -57.5), (46.4, -39.960206), (48.4, -36.835206), (48.4, -57.5)])
sketch6.addConstraint(Sketcher.Constraint("Horizontal", 0))
sketch6.addConstraint(Sketcher.Constraint("Horizontal", 2))
sketch6.addConstraint(Sketcher.Constraint("Vertical", 3))
sketch6.addConstraint(Sketcher.Constraint("Horizontal", 4))
sketch6.addConstraint(Sketcher.Constraint("Vertical", 5))
sketch6.addConstraint(Sketcher.Constraint("Horizontal", 6))
sketch6.addConstraint(Sketcher.Constraint("Horizontal", 8))
sketch6.addConstraint(Sketcher.Constraint("Vertical", 9))
sketch6.addConstraint(Sketcher.Constraint("Horizontal", 10))
sketch6.addConstraint(Sketcher.Constraint("Vertical", 11))
sketch6.addConstraint(Sketcher.Constraint("Horizontal", 12))
sketch6.addConstraint(Sketcher.Constraint("Vertical", 13))
sketch6.addConstraint(Sketcher.Constraint("Horizontal", 14))
sketch6.addConstraint(Sketcher.Constraint("Vertical", 15))
sketch6.addConstraint(Sketcher.Constraint("Horizontal", 16))
sketch6.addConstraint(Sketcher.Constraint("Vertical", 17))
sketch6.addConstraint(Sketcher.Constraint("Horizontal", 18))
sketch6.addConstraint(Sketcher.Constraint("Vertical", 19))
sketch6.addConstraint(Sketcher.Constraint("Horizontal", 20))
sketch6.addConstraint(Sketcher.Constraint("Vertical", 21))
sketch6.addConstraint(Sketcher.Constraint("Vertical", 23))
sketch6.addConstraint(Sketcher.Constraint("Vertical", 24))
sketch6.addConstraint(Sketcher.Constraint("Vertical", 26))
sketch6.addConstraint(Sketcher.Constraint("Horizontal", 27))
sketch6.addConstraint(Sketcher.Constraint("Coincident", 14, 2, -1, 1))
sketch6.addConstraint(Sketcher.Constraint("PointOnObject", 0, 2, -1))
sketch6.addConstraint(Sketcher.Constraint("Parallel", 1, 22))
sketch6.addConstraint(Sketcher.Constraint("Parallel", 7, 25))
sketch6.addConstraint(Sketcher.Constraint("Horizontal", 2, 2, 12, 2))
sketch6.addConstraint(Sketcher.Constraint("Horizontal", 8, 2, 15, 2))
sketch6.addConstraint(Sketcher.Constraint("Horizontal", 11, 2, 17, 2))
sketch6.addConstraint(Sketcher.Constraint("Vertical", 1, 2, 6, 2))
sketch6.addConstraint(Sketcher.Constraint("Vertical", 0, 2, 7, 2))
sketch6.addConstraint(Sketcher.Constraint("Vertical", 5, 2, 8, 2))
sketch6.addConstraint(Sketcher.Constraint("Vertical", 3, 2, 10, 2))
sketch6.addConstraint(Sketcher.Constraint("Vertical", 13, 2, 16, 2))
sketch6.addConstraint(Sketcher.Constraint("Vertical", 11, 2, 20, 2))
sketch6.addConstraint(Sketcher.Constraint("Vertical", 9, 2, 22, 2))
sketch6.addConstraint(Sketcher.Constraint("Vertical", 23, 2, 24, 2))
sketch6.addConstraint(Sketcher.Constraint("Vertical", 21, 2, 25, 2))
sketch6.addConstraint(Sketcher.Constraint("Equal", 5, 9))
sketch6.addConstraint(Sketcher.Constraint("Equal", 3, 11))
sketch6.addConstraint(Sketcher.Constraint("Equal", 27, 13))
sketch6.addConstraint(Sketcher.Constraint("Equal", 23, 24))
sketch6.addConstraint(Sketcher.Constraint("DistanceX", 4, 2, 4, 1, 2.0))
sketch6.addConstraint(Sketcher.Constraint("DistanceY", 3, 2, 3, 1, 14.0))
sketch6.addConstraint(Sketcher.Constraint("DistanceX", 12, 1, 12, 2, 23.2))
sketch6.addConstraint(Sketcher.Constraint("DistanceX", 14, 2, 14, 1, 21.2))
sketch6.addConstraint(Sketcher.Constraint("DistanceY", 15, 2, 15, 1, 72.5))
sketch6.addConstraint(Sketcher.Constraint("DistanceY", 20, 2, -1, 1, 15.0))
sketch6.addConstraint(Sketcher.Constraint("DistanceY", 10, 2, 26, 2, 3.0))
sketch6.addConstraint(Sketcher.Constraint("DistanceX", -1, 1, 2, 2, 48.4))
sketch6.addConstraint(Sketcher.Constraint("DistanceX", 1, 2, 0, 2, 1.28))
sketch6.addConstraint(Sketcher.Constraint("DistanceX", 0, 2, 0, 1, 20.825468))
sketch6.addConstraint(Sketcher.Constraint("DistanceY", 21, 2, 21, 1, 20.664794))
pad5 = doc.addObject("PartDesign::Pad", "Pad004")
body.addObject(pad5)
pad5.Profile = sketch6
pad5.Length = 2
pad5.Reversed = True

sketch7 = doc.addObject("Sketcher::SketchObject", "Sketch006")
body.addObject(sketch7)
sketch7.AttachmentSupport = (doc.YZ_Plane, [""])
sketch7.MapMode = "FlatFace"
sketch7.AttachmentOffset = App.Placement(Vector(0, 0, 6), App.Rotation())
add_polygon(sketch7, [(0, -23), (-2, -23), (-2, -49.5), (0, -49.5)])
sketch7.addConstraint(Sketcher.Constraint("Horizontal", 0))
sketch7.addConstraint(Sketcher.Constraint("Vertical", 1))
sketch7.addConstraint(Sketcher.Constraint("Horizontal", 2))
sketch7.addConstraint(Sketcher.Constraint("Vertical", 3))
sketch7.addConstraint(Sketcher.Constraint("PointOnObject", 2, 2, -2))
sketch7.addConstraint(Sketcher.Constraint("DistanceX", 0, 2, 0, 1, 2.0))
sketch7.addConstraint(Sketcher.Constraint("DistanceY", 1, 2, 1, 1, 26.5))
sketch7.addConstraint(Sketcher.Constraint("DistanceY", 0, 2, -1, 1, 23.0))
pad6 = doc.addObject("PartDesign::Pad", "Pad005")
body.addObject(pad6)
pad6.Profile = sketch7
pad6.Length = 2

sketch8 = doc.addObject("Sketcher::SketchObject", "Sketch007")
body.addObject(sketch8)
sketch8.AttachmentSupport = (doc.YZ_Plane, [""])
sketch8.MapMode = "FlatFace"
sketch8.AttachmentOffset = App.Placement(Vector(0, 0, 3), App.Rotation())
add_polygon(sketch8, [(48.4, -5), (46.4, -5), (46.4, -72.5), (48.4, -72.5)])
sketch8.addConstraint(Sketcher.Constraint("Horizontal", 0))
sketch8.addConstraint(Sketcher.Constraint("Vertical", 1))
sketch8.addConstraint(Sketcher.Constraint("Horizontal", 2))
sketch8.addConstraint(Sketcher.Constraint("Vertical", 3))
sketch8.addConstraint(Sketcher.Constraint("DistanceX", 0, 2, 0, 1, 2.0))
sketch8.addConstraint(Sketcher.Constraint("DistanceY", 1, 2, 1, 1, 67.5))
sketch8.addConstraint(Sketcher.Constraint("DistanceY", 0, 2, -1, 1, 5.0))
sketch8.addConstraint(Sketcher.Constraint("DistanceX", -1, 1, 0, 2, 46.4))
pad7 = doc.addObject("PartDesign::Pad", "Pad006")
body.addObject(pad7)
pad7.Profile = sketch8
pad7.Length = 10

doc.recompute()
